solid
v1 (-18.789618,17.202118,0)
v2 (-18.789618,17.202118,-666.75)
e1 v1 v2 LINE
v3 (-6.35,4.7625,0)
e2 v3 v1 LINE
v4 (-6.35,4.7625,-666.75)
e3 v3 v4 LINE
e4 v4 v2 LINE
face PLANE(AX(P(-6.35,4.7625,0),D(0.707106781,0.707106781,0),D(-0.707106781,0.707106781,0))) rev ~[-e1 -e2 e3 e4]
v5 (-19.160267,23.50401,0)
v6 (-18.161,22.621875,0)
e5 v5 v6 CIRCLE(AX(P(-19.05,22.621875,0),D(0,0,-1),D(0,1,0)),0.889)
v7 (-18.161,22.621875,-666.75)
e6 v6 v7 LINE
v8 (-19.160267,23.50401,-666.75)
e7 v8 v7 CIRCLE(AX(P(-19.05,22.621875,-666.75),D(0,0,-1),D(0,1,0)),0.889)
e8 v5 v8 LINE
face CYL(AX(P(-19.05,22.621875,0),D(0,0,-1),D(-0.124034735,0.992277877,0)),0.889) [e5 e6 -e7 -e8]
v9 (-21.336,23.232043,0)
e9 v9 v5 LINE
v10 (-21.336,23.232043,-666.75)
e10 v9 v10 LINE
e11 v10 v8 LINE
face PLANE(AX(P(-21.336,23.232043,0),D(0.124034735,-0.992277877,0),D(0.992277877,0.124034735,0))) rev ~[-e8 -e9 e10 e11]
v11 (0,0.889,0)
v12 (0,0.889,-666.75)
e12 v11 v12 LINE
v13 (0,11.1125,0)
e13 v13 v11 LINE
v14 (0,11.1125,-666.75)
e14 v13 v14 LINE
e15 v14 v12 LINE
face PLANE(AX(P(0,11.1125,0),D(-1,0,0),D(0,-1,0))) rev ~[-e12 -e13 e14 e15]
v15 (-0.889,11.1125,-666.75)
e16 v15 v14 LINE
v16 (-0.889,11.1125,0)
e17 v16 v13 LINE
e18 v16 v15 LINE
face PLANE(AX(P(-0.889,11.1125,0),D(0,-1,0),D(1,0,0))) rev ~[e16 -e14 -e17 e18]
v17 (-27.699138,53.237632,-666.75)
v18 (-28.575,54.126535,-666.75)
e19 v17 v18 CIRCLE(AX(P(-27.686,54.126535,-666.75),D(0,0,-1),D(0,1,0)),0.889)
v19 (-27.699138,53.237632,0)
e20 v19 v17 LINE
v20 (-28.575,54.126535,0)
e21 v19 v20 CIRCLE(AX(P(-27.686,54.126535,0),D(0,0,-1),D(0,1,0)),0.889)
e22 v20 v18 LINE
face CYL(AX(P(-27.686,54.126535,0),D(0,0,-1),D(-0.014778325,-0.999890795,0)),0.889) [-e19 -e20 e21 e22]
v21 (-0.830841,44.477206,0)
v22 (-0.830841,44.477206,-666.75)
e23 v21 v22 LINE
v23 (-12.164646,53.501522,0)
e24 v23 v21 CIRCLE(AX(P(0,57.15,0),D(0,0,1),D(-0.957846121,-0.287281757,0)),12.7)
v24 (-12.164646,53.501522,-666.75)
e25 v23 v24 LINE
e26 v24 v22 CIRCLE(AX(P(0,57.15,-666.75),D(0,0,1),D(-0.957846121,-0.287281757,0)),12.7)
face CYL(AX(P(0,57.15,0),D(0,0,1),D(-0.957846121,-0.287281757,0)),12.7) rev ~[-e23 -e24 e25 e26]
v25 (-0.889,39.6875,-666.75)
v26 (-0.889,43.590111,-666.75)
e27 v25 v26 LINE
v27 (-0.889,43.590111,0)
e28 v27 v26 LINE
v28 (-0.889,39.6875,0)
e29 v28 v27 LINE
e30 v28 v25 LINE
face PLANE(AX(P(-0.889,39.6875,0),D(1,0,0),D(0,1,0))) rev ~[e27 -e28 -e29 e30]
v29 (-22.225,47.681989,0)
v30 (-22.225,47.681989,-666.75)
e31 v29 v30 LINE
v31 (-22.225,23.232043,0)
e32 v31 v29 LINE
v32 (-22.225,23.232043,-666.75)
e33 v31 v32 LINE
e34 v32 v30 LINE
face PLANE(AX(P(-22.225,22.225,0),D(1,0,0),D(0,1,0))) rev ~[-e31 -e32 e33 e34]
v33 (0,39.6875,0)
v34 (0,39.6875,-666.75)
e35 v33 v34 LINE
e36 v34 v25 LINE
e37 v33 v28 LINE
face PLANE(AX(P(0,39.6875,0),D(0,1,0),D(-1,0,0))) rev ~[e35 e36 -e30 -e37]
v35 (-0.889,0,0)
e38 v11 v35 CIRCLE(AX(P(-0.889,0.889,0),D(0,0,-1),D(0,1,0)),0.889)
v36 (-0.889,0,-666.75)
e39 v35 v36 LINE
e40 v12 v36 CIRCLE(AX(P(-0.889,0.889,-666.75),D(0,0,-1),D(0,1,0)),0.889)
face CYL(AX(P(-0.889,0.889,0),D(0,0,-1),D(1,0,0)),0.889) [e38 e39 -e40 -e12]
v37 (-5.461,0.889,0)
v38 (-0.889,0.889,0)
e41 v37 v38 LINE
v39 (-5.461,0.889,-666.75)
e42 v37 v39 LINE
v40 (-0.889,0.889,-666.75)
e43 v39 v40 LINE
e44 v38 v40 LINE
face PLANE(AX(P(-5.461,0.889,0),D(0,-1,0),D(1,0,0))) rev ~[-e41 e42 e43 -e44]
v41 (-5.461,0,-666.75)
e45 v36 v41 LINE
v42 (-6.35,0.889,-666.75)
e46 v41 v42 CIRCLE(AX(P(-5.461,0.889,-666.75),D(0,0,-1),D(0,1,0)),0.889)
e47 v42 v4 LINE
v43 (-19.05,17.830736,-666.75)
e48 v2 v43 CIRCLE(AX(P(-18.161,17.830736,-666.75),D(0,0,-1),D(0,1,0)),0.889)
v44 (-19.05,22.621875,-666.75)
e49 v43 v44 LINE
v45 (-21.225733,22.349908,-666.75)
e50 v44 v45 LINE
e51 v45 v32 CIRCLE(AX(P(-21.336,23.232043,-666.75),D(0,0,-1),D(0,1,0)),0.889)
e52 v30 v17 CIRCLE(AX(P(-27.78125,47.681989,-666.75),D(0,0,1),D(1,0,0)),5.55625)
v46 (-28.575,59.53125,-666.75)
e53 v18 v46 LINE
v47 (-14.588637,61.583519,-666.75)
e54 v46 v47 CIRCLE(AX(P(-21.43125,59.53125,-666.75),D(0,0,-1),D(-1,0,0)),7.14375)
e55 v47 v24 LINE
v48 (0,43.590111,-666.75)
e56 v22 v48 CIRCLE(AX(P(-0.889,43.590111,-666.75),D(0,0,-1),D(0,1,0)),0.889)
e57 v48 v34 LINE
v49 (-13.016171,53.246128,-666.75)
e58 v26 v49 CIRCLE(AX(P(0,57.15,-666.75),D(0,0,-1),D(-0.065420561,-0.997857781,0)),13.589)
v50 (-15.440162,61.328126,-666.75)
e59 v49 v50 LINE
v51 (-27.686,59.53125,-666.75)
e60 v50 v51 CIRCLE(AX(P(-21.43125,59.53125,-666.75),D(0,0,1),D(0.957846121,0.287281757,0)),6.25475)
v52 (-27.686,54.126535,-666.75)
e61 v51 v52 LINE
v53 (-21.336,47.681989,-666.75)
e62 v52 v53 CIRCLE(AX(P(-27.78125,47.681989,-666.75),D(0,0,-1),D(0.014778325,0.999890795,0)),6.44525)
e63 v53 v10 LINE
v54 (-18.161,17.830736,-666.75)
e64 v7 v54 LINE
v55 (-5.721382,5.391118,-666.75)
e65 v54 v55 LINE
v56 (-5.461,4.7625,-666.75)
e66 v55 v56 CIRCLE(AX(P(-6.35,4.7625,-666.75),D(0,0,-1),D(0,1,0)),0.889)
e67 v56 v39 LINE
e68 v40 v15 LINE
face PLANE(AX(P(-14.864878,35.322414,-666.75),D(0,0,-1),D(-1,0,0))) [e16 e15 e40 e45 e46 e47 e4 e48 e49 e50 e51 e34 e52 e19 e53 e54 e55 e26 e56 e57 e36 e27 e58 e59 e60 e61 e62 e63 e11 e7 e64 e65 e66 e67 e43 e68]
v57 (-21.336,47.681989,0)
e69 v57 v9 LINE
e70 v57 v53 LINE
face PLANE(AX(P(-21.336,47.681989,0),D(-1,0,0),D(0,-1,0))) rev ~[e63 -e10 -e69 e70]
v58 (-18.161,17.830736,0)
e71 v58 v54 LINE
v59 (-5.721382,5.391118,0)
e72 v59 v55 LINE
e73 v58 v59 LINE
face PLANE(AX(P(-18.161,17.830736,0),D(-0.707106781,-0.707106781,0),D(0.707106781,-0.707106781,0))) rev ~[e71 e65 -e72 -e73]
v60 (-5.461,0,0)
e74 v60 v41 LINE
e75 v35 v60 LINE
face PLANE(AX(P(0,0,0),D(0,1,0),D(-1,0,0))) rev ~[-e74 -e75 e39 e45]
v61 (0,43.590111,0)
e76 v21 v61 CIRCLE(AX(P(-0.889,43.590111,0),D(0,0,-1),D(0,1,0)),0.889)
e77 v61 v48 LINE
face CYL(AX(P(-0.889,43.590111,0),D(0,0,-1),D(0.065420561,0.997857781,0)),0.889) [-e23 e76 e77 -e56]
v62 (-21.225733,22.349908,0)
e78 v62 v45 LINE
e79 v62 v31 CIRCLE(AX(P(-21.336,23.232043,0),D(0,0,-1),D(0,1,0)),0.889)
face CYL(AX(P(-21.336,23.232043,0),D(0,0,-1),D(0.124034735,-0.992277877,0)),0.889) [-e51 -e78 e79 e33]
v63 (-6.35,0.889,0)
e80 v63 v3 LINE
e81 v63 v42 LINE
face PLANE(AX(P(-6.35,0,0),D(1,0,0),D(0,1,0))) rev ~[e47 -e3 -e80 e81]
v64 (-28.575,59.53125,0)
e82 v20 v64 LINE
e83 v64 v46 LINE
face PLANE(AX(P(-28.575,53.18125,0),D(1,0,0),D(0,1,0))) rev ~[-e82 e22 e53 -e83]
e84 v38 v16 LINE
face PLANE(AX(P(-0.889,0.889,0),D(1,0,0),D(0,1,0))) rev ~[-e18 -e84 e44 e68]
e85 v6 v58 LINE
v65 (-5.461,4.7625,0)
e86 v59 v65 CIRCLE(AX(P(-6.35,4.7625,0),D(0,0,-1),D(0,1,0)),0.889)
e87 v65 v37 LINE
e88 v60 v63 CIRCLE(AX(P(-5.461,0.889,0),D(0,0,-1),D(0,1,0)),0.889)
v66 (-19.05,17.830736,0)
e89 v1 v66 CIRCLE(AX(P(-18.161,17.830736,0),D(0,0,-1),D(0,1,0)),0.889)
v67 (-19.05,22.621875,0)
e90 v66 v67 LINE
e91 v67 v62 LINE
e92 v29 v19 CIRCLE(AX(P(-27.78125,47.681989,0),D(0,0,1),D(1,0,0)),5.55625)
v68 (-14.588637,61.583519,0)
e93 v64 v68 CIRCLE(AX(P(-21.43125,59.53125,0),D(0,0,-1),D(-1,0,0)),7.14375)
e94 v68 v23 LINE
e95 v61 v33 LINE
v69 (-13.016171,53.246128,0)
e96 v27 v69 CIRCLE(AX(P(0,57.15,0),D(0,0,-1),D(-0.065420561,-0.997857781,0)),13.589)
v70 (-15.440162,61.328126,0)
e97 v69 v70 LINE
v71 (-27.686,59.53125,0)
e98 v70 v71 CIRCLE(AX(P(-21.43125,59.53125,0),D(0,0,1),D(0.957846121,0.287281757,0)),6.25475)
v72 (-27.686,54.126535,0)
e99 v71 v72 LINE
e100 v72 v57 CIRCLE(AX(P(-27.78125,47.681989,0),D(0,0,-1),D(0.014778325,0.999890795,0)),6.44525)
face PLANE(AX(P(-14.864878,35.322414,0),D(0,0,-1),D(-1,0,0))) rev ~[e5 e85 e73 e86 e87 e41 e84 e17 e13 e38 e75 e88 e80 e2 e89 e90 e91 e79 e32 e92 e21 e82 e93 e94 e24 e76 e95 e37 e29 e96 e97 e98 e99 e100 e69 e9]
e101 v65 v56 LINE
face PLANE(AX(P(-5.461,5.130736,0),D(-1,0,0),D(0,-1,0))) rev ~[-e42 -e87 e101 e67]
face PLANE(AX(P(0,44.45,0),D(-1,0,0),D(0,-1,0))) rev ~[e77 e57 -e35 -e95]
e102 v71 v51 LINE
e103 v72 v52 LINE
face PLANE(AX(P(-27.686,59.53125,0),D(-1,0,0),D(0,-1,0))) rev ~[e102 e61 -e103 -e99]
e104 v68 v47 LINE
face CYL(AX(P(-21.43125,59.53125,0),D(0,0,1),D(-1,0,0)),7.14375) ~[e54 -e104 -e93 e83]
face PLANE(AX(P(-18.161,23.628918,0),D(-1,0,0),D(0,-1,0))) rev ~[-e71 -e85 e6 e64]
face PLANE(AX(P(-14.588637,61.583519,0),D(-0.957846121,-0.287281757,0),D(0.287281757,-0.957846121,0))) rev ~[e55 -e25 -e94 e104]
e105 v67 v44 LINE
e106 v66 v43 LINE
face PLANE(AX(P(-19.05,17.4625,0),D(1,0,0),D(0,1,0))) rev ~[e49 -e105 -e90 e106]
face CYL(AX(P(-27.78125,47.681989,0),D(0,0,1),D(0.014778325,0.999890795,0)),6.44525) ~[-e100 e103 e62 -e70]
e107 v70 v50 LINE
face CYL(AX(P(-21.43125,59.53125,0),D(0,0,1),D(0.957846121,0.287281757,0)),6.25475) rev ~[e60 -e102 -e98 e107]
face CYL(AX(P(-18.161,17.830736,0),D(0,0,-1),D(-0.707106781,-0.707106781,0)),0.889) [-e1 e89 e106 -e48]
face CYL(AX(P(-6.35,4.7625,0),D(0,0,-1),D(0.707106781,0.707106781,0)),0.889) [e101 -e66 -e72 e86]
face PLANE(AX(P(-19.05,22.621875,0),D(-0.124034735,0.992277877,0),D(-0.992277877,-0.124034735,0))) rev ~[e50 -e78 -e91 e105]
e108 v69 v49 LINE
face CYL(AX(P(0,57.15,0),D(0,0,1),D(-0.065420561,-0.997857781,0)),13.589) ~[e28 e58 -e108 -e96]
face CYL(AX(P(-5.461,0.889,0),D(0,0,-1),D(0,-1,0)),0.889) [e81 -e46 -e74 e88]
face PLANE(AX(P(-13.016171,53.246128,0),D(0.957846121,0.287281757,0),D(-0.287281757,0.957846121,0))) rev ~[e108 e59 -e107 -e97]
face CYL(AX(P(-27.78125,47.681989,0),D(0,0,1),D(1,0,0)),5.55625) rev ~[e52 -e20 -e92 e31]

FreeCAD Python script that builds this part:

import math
import FreeCAD as App
import Part
import Sketcher

V = App.Vector
Q = App.Units.Quantity


def edges_at(feature, points):
    """Names of the edges that pass closest to the given points."""
    edges = feature.Shape.Edges
    near = lambda p: min(range(len(edges)), key=lambda i: edges[i].distToShape(Part.Vertex(*p))[0])
    return sorted({f"Edge{near(p) + 1}" for p in points})

doc = App.newDocument("Part")
body = doc.addObject("PartDesign::Body", "Body")

# Sketch on XY plane
sketch1 = body.newObject("Sketcher::SketchObject", "Sketch")
sketch1.AttachmentSupport = (doc.getObject("XY_Plane"), [""])
sketch1.MapMode = "FlatFace"
sketch1.addGeometry(Part.LineSegment(V(0, 0, 0), V(0, 11.1, 0)), False)
sketch1.addGeometry(Part.LineSegment(V(0, 11.1, 0), V(-0.9, 11.1, 0)), False)
sketch1.addGeometry(Part.LineSegment(V(-0.9, 11.1, 0), V(-0.9, 0.9, 0)), False)
sketch1.addGeometry(Part.LineSegment(V(-0.9, 0.9, 0), V(-5.5, 0.9, 0)), False)
sketch1.addGeometry(Part.LineSegment(V(-5.5, 0.9, 0), V(-5.5, 5.1, 0)), False)
sketch1.addGeometry(Part.LineSegment(V(-5.5, 5.1, 0), V(-18.2, 17.8, 0)), False)
sketch1.addGeometry(Part.LineSegment(V(-18.2, 17.8, 0), V(-18.2, 23.6, 0)), False)
sketch1.addGeometry(Part.LineSegment(V(-18.2, 23.6, 0), V(-21.3, 23.2, 0)), False)
sketch1.addGeometry(Part.LineSegment(V(-21.3, 23.2, 0), V(-21.3, 47.7, 0)), False)
sketch1.addGeometry(Part.ArcOfCircle(Part.Circle(V(-27.8, 47.7, 0), V(0, 0, 1), 6.4), math.radians(0), math.radians(89)), False)
sketch1.addGeometry(Part.LineSegment(V(-27.7, 54.1, 0), V(-27.7, 59.5, 0)), False)
sketch1.addGeometry(Part.ArcOfCircle(Part.Circle(V(-21.4, 59.5, 0), V(0, 0, 1), 6.3), math.radians(17), math.radians(180)), False)
sketch1.addGeometry(Part.LineSegment(V(-15.4, 61.3, 0), V(-13, 53.2, 0)), False)
sketch1.addGeometry(Part.ArcOfCircle(Part.Circle(V(0, 57.2, 0), V(0, 0, 1), 13.6), math.radians(-163), math.radians(-94)), False)
sketch1.addGeometry(Part.LineSegment(V(-0.9, 43.6, 0), V(-0.9, 39.7, 0)), False)
sketch1.addGeometry(Part.LineSegment(V(-0.9, 39.7, 0), V(0, 39.7, 0)), False)
sketch1.addGeometry(Part.LineSegment(V(0, 39.7, 0), V(0, 44.5, 0)), False)
sketch1.addGeometry(Part.ArcOfCircle(Part.Circle(V(0, 57.1, 0), V(0, 0, 1), 12.7), math.radians(-163), math.radians(-90)), False)
sketch1.addGeometry(Part.LineSegment(V(-12.2, 53.5, 0), V(-14.6, 61.6, 0)), False)
sketch1.addGeometry(Part.ArcOfCircle(Part.Circle(V(-21.4, 59.5, 0), V(0, 0, 1), 7.1), math.radians(17), math.radians(180)), False)
sketch1.addGeometry(Part.LineSegment(V(-28.6, 59.5, 0), V(-28.6, 53.2, 0)), False)
sketch1.addGeometry(Part.ArcOfCircle(Part.Circle(V(-27.8, 47.7, 0), V(0, 0, 1), 5.6), math.radians(0), math.radians(98)), False)
sketch1.addGeometry(Part.LineSegment(V(-22.2, 47.7, 0), V(-22.2, 22.2, 0)), False)
sketch1.addGeometry(Part.LineSegment(V(-22.2, 22.2, 0), V(-19.1, 22.6, 0)), False)
sketch1.addGeometry(Part.LineSegment(V(-19.1, 22.6, 0), V(-19.1, 17.5, 0)), False)
sketch1.addGeometry(Part.LineSegment(V(-19.1, 17.5, 0), V(-6.3, 4.8, 0)), False)
sketch1.addGeometry(Part.LineSegment(V(-6.3, 4.8, 0), V(-6.3, 0, 0)), False)
sketch1.addGeometry(Part.LineSegment(V(-6.3, 0, 0), V(0, 0, 0)), False)
sketch1.addConstraint(Sketcher.Constraint("Coincident", 0, 2, 1, 1))
sketch1.addConstraint(Sketcher.Constraint("Coincident", 1, 2, 2, 1))
sketch1.addConstraint(Sketcher.Constraint("Coincident", 2, 2, 3, 1))
sketch1.addConstraint(Sketcher.Constraint("Coincident", 3, 2, 4, 1))
sketch1.addConstraint(Sketcher.Constraint("Coincident", 4, 2, 5, 1))
sketch1.addConstraint(Sketcher.Constraint("Coincident", 5, 2, 6, 1))
sketch1.addConstraint(Sketcher.Constraint("Coincident", 6, 2, 7, 1))
sketch1.addConstraint(Sketcher.Constraint("Coincident", 7, 2, 8, 1))
sketch1.addConstraint(Sketcher.Constraint("Tangent", 8, 2, 9, 1))
sketch1.addConstraint(Sketcher.Constraint("Coincident", 9, 2, 10, 1))
sketch1.addConstraint(Sketcher.Constraint("Tangent", 10, 2, 11, 2))
sketch1.addConstraint(Sketcher.Constraint("Tangent", 11, 1, 12, 1))
sketch1.addConstraint(Sketcher.Constraint("Tangent", 12, 2, 13, 1))
sketch1.addConstraint(Sketcher.Constraint("Coincident", 13, 2, 14, 1))
sketch1.addConstraint(Sketcher.Constraint("Coincident", 14, 2, 15, 1))
sketch1.addConstraint(Sketcher.Constraint("Coincident", 15, 2, 16, 1))
sketch1.addConstraint(Sketcher.Constraint("Coincident", 16, 2, 17, 2))
sketch1.addConstraint(Sketcher.Constraint("Tangent", 17, 1, 18, 1))
sketch1.addConstraint(Sketcher.Constraint("Tangent", 18, 2, 19, 1))
sketch1.addConstraint(Sketcher.Constraint("Tangent", 19, 2, 20, 1))
sketch1.addConstraint(Sketcher.Constraint("Coincident", 20, 2, 21, 2))
sketch1.addConstraint(Sketcher.Constraint("Tangent", 21, 1, 22, 1))
sketch1.addConstraint(Sketcher.Constraint("Coincident", 22, 2, 23, 1))
sketch1.addConstraint(Sketcher.Constraint("Coincident", 23, 2, 24, 1))
sketch1.addConstraint(Sketcher.Constraint("Coincident", 24, 2, 25, 1))
sketch1.addConstraint(Sketcher.Constraint("Coincident", 25, 2, 26, 1))
sketch1.addConstraint(Sketcher.Constraint("Coincident", 26, 2, 27, 1))
sketch1.addConstraint(Sketcher.Constraint("Coincident", 27, 2, 0, 1))
sketch1.addConstraint(Sketcher.Constraint("Vertical", 0))
sketch1.addConstraint(Sketcher.Constraint("Horizontal", 1))
sketch1.addConstraint(Sketcher.Constraint("Vertical", 2))
sketch1.addConstraint(Sketcher.Constraint("Horizontal", 3))
sketch1.addConstraint(Sketcher.Constraint("Vertical", 4))
sketch1.addConstraint(Sketcher.Constraint("Vertical", 6))
sketch1.addConstraint(Sketcher.Constraint("Vertical", 8))
sketch1.addConstraint(Sketcher.Constraint("Vertical", 10))
sketch1.addConstraint(Sketcher.Constraint("Vertical", 14))
sketch1.addConstraint(Sketcher.Constraint("Horizontal", 15))
sketch1.addConstraint(Sketcher.Constraint("Vertical", 16))
sketch1.addConstraint(Sketcher.Constraint("Vertical", 20))
sketch1.addConstraint(Sketcher.Constraint("Vertical", 22))
sketch1.addConstraint(Sketcher.Constraint("Vertical", 24))
sketch1.addConstraint(Sketcher.Constraint("Vertical", 26))
sketch1.addConstraint(Sketcher.Constraint("Horizontal", 27))
sketch1.addConstraint(Sketcher.Constraint("Coincident", 27, 2, -1, 1))
sketch1.addConstraint(Sketcher.Constraint("Coincident", 17, 3, 13, 3))
sketch1.addConstraint(Sketcher.Constraint("Coincident", 19, 3, 11, 3))
sketch1.addConstraint(Sketcher.Constraint("Coincident", 21, 3, 9, 3))
sketch1.addConstraint(Sketcher.Constraint("PointOnObject", 13, 3, -2))
sketch1.addConstraint(Sketcher.Constraint("PointOnObject", 15, 2, -2))
sketch1.addConstraint(Sketcher.Constraint("Parallel", 12, 18))
sketch1.addConstraint(Sketcher.Constraint("Parallel", 7, 23))
sketch1.addConstraint(Sketcher.Constraint("Parallel", 5, 25))
sketch1.addConstraint(Sketcher.Constraint("Vertical", 2, 2, 13, 2))
sketch1.addConstraint(Sketcher.Constraint("Equal", 27, 20))
sketch1.addConstraint(Sketcher.Constraint("Equal", 16, 26))
sketch1.addConstraint(Sketcher.Constraint("Equal", 7, 23))
sketch1.addConstraint(Sketcher.Constraint("Equal", 5, 25))
sketch1.addConstraint(Sketcher.Constraint("Radius", 17, Q("0.5 in")))
sketch1.addConstraint(Sketcher.Constraint("Angle", 5, Q("135 deg")))
sketch1.addConstraint(Sketcher.Constraint("Radius", 13, Q("0.535 in")))
sketch1.addConstraint(Sketcher.Constraint("Radius", 19, Q("0.28125 in")))
sketch1.addConstraint(Sketcher.Constraint("Radius", 21, Q("0.21875 in")))
sketch1.addConstraint(Sketcher.Constraint("DistanceX", 3, 2, 3, 1, Q("0.18 in")))
sketch1.addConstraint(Sketcher.Constraint("DistanceX", 27, 1, 27, 2, Q("0.25 in")))
sketch1.addConstraint(Sketcher.Constraint("DistanceX", 5, 2, 4, 2, Q("0.5 in")))
sketch1.addConstraint(Sketcher.Constraint("DistanceX", 1, 2, 1, 1, Q("0.035 in")))
sketch1.addConstraint(Sketcher.Constraint("DistanceY", 0, 1, 0, 2, Q("0.4375 in")))
sketch1.addConstraint(Sketcher.Constraint("DistanceY", 16, 1, 16, 2, Q("0.1875 in")))
sketch1.addConstraint(Sketcher.Constraint("DistanceY", 24, 2, 24, 1, Q("0.203125 in")))
sketch1.addConstraint(Sketcher.Constraint("DistanceY", -1, 1, 13, 3, Q("2.25 in")))
sketch1.addConstraint(Sketcher.Constraint("DistanceX", 7, 2, -1, 1, Q("0.84 in")))
sketch1.addConstraint(Sketcher.Constraint("DistanceX", 9, 2, -1, 1, Q("1.09 in")))
sketch1.addConstraint(Sketcher.Constraint("DistanceY", 2, 2, 2, 1, Q("0.4025 in")))
sketch1.addConstraint(Sketcher.Constraint("DistanceY", -1, 1, 11, 3, Q("2.34375 in")))
sketch1.addConstraint(Sketcher.Constraint("DistanceY", -1, 1, 22, 2, Q("0.875 in")))
sketch1.addConstraint(Sketcher.Constraint("DistanceY", 4, 1, 4, 2, 4.241736))
sketch1.addConstraint(Sketcher.Constraint("DistanceY", 6, 1, 6, 2, 5.798183))
pad1 = body.newObject("PartDesign::Pad", "Pad")
pad1.Profile = sketch1
pad1.Length = Q("26.25 in")
pad1.Reversed = True
doc.recompute()

fillet = body.newObject("PartDesign::Fillet", "Fillet")
fillet.Base = (pad1, edges_at(pad1, [
    (-18.161, 23.629, -333.375),
    (-5.461, 5.131, -333.375),
    (0, 0, -333.375),
    (-6.35, 0, -333.375),
    (-19.05, 17.462, -333.375),
    (-22.225, 22.225, -333.375),
    (-28.575, 53.181, -333.375),
    (0, 44.45, -333.375),
]))
fillet.Radius = Q("0.035 in")

doc.recompute()
